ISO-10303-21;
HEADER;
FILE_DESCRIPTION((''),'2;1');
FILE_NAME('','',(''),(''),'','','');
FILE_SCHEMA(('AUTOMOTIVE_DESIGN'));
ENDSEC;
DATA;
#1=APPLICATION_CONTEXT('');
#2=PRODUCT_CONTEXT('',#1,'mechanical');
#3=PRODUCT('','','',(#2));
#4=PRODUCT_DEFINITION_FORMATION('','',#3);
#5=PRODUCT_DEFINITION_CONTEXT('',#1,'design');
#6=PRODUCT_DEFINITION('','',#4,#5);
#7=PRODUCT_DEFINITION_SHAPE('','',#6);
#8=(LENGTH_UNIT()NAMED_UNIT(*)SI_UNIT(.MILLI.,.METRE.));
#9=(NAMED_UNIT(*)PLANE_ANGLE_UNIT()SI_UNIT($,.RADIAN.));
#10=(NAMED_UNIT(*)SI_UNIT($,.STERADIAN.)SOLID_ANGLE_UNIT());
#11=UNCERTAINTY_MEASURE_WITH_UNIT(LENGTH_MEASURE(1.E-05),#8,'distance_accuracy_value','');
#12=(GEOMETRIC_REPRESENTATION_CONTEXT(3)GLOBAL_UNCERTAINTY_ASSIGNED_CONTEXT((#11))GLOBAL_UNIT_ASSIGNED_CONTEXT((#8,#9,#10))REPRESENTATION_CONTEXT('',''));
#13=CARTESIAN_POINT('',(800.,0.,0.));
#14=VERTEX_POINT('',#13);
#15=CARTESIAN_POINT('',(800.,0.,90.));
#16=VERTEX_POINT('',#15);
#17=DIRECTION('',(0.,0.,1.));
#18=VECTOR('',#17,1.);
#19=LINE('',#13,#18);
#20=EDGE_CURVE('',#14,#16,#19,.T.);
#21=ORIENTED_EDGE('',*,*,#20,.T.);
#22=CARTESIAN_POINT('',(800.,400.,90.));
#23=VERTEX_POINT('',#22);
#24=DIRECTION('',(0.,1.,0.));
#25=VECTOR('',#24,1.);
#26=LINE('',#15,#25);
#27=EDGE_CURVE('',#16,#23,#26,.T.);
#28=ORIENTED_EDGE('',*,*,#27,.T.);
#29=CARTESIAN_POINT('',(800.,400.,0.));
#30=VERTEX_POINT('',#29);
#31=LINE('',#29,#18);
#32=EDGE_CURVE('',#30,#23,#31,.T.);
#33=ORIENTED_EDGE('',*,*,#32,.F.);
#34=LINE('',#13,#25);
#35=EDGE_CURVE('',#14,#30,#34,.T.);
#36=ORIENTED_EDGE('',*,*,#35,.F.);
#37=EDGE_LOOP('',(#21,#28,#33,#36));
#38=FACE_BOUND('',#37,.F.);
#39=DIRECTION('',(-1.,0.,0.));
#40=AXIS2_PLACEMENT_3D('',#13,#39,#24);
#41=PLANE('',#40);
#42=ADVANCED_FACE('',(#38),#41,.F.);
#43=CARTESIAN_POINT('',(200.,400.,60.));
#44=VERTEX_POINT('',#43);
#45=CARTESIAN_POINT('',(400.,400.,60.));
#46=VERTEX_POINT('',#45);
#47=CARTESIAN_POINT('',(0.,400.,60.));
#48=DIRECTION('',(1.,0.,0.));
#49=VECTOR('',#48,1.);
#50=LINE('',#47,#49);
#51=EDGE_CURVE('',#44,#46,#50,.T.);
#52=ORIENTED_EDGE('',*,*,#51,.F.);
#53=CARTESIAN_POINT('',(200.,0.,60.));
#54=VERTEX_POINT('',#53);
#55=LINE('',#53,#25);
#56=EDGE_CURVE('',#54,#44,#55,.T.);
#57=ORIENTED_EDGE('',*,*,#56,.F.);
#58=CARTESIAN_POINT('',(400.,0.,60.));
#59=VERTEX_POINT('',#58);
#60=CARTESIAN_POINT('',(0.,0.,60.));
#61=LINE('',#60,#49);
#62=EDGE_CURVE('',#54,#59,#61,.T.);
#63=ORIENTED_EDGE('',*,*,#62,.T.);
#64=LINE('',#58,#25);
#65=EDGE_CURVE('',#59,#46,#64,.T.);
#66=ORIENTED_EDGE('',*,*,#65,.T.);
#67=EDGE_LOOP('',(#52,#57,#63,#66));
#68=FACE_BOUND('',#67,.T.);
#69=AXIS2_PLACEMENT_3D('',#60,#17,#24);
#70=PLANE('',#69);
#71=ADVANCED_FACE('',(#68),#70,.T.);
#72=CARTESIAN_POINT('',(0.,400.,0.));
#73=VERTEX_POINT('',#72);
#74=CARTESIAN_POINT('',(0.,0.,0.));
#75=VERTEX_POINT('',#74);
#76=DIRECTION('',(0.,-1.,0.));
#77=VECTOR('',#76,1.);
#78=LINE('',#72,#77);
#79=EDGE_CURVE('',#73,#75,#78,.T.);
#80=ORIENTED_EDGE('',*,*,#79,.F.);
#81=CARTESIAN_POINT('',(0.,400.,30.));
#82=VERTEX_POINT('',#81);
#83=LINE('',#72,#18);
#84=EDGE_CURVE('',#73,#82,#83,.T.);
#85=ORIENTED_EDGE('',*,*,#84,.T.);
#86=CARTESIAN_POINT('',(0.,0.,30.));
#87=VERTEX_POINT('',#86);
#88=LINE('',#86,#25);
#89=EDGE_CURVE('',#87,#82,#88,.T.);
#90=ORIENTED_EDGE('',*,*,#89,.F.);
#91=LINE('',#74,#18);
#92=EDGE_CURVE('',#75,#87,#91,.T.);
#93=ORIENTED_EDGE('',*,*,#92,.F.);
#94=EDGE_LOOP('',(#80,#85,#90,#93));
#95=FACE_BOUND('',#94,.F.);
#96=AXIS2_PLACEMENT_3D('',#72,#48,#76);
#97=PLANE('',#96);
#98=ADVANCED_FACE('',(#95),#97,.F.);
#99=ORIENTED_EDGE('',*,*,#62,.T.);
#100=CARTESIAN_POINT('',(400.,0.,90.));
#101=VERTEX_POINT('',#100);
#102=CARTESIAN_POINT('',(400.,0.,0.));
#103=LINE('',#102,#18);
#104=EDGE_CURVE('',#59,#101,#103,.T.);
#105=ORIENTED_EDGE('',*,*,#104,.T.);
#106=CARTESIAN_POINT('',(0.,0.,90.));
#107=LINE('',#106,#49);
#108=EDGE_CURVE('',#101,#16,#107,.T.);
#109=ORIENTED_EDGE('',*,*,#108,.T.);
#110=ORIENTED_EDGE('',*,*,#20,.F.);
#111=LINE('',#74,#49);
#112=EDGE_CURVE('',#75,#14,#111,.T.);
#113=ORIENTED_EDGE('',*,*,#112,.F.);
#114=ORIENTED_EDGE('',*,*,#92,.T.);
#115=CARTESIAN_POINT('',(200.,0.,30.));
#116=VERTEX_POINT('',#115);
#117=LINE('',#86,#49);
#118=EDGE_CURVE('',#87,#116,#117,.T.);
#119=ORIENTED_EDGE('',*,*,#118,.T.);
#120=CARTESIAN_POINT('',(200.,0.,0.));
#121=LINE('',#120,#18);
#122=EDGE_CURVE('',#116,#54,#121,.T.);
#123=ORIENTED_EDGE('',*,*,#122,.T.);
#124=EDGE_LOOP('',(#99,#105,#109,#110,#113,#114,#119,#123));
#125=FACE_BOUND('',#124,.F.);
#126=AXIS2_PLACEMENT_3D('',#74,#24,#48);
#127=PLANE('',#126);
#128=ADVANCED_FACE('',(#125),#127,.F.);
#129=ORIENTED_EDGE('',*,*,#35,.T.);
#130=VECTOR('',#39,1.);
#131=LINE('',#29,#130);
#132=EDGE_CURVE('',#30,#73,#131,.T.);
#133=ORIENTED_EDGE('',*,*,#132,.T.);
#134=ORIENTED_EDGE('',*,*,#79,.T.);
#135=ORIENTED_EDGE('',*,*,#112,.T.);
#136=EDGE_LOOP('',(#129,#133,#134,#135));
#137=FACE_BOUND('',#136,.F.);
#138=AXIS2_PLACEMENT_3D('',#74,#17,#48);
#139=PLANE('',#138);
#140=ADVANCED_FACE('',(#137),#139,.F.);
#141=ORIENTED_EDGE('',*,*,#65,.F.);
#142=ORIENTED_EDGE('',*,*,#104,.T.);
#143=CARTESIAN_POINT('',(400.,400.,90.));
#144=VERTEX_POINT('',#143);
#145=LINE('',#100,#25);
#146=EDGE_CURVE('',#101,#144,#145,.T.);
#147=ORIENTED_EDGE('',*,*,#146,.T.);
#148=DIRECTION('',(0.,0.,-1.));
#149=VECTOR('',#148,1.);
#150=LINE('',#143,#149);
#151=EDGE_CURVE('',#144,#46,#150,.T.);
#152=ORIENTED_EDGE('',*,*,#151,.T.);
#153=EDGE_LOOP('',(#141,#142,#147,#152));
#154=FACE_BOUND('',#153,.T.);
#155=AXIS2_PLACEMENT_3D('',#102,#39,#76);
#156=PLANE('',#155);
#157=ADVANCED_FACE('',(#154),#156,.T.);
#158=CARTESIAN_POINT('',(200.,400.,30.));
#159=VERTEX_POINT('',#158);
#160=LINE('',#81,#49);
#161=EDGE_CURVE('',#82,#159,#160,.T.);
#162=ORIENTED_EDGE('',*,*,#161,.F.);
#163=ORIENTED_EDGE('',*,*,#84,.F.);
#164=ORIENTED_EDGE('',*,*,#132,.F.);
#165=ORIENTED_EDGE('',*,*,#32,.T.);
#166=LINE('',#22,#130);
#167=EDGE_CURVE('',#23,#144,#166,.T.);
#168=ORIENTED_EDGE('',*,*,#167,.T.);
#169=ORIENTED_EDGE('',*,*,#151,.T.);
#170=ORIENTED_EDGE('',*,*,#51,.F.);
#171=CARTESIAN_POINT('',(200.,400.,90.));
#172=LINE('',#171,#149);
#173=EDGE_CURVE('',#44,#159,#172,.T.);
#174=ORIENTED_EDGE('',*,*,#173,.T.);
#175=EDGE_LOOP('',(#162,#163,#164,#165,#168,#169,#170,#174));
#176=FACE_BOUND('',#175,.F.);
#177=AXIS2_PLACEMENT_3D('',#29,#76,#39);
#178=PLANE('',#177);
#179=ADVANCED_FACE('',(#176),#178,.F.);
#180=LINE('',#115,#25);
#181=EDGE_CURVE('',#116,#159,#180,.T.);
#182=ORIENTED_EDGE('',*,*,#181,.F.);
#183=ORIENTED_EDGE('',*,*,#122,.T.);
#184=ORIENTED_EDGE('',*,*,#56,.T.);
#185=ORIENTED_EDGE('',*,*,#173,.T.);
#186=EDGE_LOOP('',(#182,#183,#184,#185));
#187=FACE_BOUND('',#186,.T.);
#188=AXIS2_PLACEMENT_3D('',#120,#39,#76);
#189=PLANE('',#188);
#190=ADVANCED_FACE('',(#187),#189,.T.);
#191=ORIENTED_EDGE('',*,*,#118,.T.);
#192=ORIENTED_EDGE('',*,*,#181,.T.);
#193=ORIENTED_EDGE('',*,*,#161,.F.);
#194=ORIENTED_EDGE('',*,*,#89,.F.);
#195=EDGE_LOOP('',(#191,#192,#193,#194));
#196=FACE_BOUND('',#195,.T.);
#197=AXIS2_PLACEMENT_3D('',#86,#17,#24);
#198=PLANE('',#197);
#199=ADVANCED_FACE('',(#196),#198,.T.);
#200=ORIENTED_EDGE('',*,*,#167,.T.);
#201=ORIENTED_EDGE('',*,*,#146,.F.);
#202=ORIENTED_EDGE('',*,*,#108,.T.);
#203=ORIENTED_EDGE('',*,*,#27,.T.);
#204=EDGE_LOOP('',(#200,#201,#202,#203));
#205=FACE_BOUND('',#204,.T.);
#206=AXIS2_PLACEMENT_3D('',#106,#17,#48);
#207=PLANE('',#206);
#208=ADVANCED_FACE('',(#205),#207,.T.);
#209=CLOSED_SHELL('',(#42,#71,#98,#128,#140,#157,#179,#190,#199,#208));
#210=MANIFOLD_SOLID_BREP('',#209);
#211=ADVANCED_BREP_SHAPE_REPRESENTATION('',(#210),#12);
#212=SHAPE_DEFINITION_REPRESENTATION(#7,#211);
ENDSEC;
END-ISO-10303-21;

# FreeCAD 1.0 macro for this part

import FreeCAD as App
import Part
import Sketcher
from FreeCAD import Vector
Q = App.Units.Quantity

doc = App.newDocument("Part")
body = doc.addObject("PartDesign::Body", "Body")

sketch1 = doc.addObject("Sketcher::SketchObject", "Sketch")
body.addObject(sketch1)
sketch1.AttachmentSupport = (doc.XY_Plane, [""])
sketch1.MapMode = "FlatFace"
sketch1.addGeometry(Part.LineSegment(Vector(0, 400, 0), Vector(0, 0, 0)), False)
sketch1.addGeometry(Part.LineSegment(Vector(0, 0, 0), Vector(800, 0, 0)), False)
sketch1.addGeometry(Part.LineSegment(Vector(800, 0, 0), Vector(800, 400, 0)), False)
sketch1.addGeometry(Part.LineSegment(Vector(800, 400, 0), Vector(0, 400, 0)), False)
sketch1.addConstraint(Sketcher.Constraint("Coincident", 0, 2, 1, 1))
sketch1.addConstraint(Sketcher.Constraint("Coincident", 1, 2, 2, 1))
sketch1.addConstraint(Sketcher.Constraint("Coincident", 2, 2, 3, 1))
sketch1.addConstraint(Sketcher.Constraint("Coincident", 3, 2, 0, 1))
sketch1.addConstraint(Sketcher.Constraint("Vertical", 0))
sketch1.addConstraint(Sketcher.Constraint("Horizontal", 1))
sketch1.addConstraint(Sketcher.Constraint("Vertical", 2))
sketch1.addConstraint(Sketcher.Constraint("Horizontal", 3))
sketch1.addConstraint(Sketcher.Constraint("Coincident", 0, 2, -1, 1))
sketch1.addConstraint(Sketcher.Constraint("DistanceX", 1, 1, 1, 2, Q("800 mm")))
sketch1.addConstraint(Sketcher.Constraint("DistanceY", 0, 2, 0, 1, Q("400 mm")))
pad1 = doc.addObject("PartDesign::Pad", "Pad")
body.addObject(pad1)
pad1.Profile = sketch1
pad1.Length = 90

sketch2 = doc.addObject("Sketcher::SketchObject", "Sketch001")
body.addObject(sketch2)
sketch2.AttachmentSupport = (doc.YZ_Plane, [""])
sketch2.MapMode = "FlatFace"
sketch2.addGeometry(Part.LineSegment(Vector(400, 90, 0), Vector(400, 60, 0)), False)
sketch2.addGeometry(Part.LineSegment(Vector(400, 60, 0), Vector(0, 60, 0)), False)
sketch2.addGeometry(Part.LineSegment(Vector(0, 60, 0), Vector(0, 90, 0)), False)
sketch2.addGeometry(Part.LineSegment(Vector(0, 90, 0), Vector(400, 90, 0)), False)
sketch2.addConstraint(Sketcher.Constraint("Coincident", 0, 2, 1, 1))
sketch2.addConstraint(Sketcher.Constraint("Coincident", 1, 2, 2, 1))
sketch2.addConstraint(Sketcher.Constraint("Coincident", 2, 2, 3, 1))
sketch2.addConstraint(Sketcher.Constraint("Coincident", 3, 2, 0, 1))
sketch2.addConstraint(Sketcher.Constraint("Vertical", 0))
sketch2.addConstraint(Sketcher.Constraint("Horizontal", 1))
sketch2.addConstraint(Sketcher.Constraint("Vertical", 2))
sketch2.addConstraint(Sketcher.Constraint("Horizontal", 3))
sketch2.addConstraint(Sketcher.Constraint("PointOnObject", 1, 2, -2))
sketch2.addConstraint(Sketcher.Constraint("DistanceY", 0, 2, 0, 1, Q("30 mm")))
sketch2.addConstraint(Sketcher.Constraint("DistanceX", 1, 2, 1, 1, Q("400 mm")))
sketch2.addConstraint(Sketcher.Constraint("DistanceY", -1, 1, 0, 2, Q("60 mm")))
pocket1 = doc.addObject("PartDesign::Pocket", "Pocket")
body.addObject(pocket1)
pocket1.Profile = sketch2
pocket1.Length = 400
pocket1.Reversed = True

sketch3 = doc.addObject("Sketcher::SketchObject", "Sketch002")
body.addObject(sketch3)
sketch3.AttachmentSupport = (doc.YZ_Plane, [""])
sketch3.MapMode = "FlatFace"
sketch3.addGeometry(Part.LineSegment(Vector(400, 60, 0), Vector(400, 30, 0)), False)
sketch3.addGeometry(Part.LineSegment(Vector(400, 30, 0), Vector(0, 30, 0)), False)
sketch3.addGeometry(Part.LineSegment(Vector(0, 30, 0), Vector(0, 60, 0)), False)
sketch3.addGeometry(Part.LineSegment(Vector(0, 60, 0), Vector(400, 60, 0)), False)
sketch3.addConstraint(Sketcher.Constraint("Coincident", 0, 2, 1, 1))
sketch3.addConstraint(Sketcher.Constraint("Coincident", 1, 2, 2, 1))
sketch3.addConstraint(Sketcher.Constraint("Coincident", 2, 2, 3, 1))
sketch3.addConstraint(Sketcher.Constraint("Coincident", 3, 2, 0, 1))
sketch3.addConstraint(Sketcher.Constraint("Vertical", 0))
sketch3.addConstraint(Sketcher.Constraint("Horizontal", 1))
sketch3.addConstraint(Sketcher.Constraint("Vertical", 2))
sketch3.addConstraint(Sketcher.Constraint("Horizontal", 3))
sketch3.addConstraint(Sketcher.Constraint("PointOnObject", 1, 2, -2))
sketch3.addConstraint(Sketcher.Constraint("DistanceY", 0, 2, 0, 1, Q("30 mm")))
sketch3.addConstraint(Sketcher.Constraint("DistanceY", -1, 1, 0, 2, Q("30 mm")))
sketch3.addConstraint(Sketcher.Constraint("DistanceX", 1, 2, 1, 1, Q("400 mm")))
pocket2 = doc.addObject("PartDesign::Pocket", "Pocket001")
body.addObject(pocket2)
pocket2.Profile = sketch3
pocket2.Length = 200
pocket2.Reversed = True

doc.recompute()
